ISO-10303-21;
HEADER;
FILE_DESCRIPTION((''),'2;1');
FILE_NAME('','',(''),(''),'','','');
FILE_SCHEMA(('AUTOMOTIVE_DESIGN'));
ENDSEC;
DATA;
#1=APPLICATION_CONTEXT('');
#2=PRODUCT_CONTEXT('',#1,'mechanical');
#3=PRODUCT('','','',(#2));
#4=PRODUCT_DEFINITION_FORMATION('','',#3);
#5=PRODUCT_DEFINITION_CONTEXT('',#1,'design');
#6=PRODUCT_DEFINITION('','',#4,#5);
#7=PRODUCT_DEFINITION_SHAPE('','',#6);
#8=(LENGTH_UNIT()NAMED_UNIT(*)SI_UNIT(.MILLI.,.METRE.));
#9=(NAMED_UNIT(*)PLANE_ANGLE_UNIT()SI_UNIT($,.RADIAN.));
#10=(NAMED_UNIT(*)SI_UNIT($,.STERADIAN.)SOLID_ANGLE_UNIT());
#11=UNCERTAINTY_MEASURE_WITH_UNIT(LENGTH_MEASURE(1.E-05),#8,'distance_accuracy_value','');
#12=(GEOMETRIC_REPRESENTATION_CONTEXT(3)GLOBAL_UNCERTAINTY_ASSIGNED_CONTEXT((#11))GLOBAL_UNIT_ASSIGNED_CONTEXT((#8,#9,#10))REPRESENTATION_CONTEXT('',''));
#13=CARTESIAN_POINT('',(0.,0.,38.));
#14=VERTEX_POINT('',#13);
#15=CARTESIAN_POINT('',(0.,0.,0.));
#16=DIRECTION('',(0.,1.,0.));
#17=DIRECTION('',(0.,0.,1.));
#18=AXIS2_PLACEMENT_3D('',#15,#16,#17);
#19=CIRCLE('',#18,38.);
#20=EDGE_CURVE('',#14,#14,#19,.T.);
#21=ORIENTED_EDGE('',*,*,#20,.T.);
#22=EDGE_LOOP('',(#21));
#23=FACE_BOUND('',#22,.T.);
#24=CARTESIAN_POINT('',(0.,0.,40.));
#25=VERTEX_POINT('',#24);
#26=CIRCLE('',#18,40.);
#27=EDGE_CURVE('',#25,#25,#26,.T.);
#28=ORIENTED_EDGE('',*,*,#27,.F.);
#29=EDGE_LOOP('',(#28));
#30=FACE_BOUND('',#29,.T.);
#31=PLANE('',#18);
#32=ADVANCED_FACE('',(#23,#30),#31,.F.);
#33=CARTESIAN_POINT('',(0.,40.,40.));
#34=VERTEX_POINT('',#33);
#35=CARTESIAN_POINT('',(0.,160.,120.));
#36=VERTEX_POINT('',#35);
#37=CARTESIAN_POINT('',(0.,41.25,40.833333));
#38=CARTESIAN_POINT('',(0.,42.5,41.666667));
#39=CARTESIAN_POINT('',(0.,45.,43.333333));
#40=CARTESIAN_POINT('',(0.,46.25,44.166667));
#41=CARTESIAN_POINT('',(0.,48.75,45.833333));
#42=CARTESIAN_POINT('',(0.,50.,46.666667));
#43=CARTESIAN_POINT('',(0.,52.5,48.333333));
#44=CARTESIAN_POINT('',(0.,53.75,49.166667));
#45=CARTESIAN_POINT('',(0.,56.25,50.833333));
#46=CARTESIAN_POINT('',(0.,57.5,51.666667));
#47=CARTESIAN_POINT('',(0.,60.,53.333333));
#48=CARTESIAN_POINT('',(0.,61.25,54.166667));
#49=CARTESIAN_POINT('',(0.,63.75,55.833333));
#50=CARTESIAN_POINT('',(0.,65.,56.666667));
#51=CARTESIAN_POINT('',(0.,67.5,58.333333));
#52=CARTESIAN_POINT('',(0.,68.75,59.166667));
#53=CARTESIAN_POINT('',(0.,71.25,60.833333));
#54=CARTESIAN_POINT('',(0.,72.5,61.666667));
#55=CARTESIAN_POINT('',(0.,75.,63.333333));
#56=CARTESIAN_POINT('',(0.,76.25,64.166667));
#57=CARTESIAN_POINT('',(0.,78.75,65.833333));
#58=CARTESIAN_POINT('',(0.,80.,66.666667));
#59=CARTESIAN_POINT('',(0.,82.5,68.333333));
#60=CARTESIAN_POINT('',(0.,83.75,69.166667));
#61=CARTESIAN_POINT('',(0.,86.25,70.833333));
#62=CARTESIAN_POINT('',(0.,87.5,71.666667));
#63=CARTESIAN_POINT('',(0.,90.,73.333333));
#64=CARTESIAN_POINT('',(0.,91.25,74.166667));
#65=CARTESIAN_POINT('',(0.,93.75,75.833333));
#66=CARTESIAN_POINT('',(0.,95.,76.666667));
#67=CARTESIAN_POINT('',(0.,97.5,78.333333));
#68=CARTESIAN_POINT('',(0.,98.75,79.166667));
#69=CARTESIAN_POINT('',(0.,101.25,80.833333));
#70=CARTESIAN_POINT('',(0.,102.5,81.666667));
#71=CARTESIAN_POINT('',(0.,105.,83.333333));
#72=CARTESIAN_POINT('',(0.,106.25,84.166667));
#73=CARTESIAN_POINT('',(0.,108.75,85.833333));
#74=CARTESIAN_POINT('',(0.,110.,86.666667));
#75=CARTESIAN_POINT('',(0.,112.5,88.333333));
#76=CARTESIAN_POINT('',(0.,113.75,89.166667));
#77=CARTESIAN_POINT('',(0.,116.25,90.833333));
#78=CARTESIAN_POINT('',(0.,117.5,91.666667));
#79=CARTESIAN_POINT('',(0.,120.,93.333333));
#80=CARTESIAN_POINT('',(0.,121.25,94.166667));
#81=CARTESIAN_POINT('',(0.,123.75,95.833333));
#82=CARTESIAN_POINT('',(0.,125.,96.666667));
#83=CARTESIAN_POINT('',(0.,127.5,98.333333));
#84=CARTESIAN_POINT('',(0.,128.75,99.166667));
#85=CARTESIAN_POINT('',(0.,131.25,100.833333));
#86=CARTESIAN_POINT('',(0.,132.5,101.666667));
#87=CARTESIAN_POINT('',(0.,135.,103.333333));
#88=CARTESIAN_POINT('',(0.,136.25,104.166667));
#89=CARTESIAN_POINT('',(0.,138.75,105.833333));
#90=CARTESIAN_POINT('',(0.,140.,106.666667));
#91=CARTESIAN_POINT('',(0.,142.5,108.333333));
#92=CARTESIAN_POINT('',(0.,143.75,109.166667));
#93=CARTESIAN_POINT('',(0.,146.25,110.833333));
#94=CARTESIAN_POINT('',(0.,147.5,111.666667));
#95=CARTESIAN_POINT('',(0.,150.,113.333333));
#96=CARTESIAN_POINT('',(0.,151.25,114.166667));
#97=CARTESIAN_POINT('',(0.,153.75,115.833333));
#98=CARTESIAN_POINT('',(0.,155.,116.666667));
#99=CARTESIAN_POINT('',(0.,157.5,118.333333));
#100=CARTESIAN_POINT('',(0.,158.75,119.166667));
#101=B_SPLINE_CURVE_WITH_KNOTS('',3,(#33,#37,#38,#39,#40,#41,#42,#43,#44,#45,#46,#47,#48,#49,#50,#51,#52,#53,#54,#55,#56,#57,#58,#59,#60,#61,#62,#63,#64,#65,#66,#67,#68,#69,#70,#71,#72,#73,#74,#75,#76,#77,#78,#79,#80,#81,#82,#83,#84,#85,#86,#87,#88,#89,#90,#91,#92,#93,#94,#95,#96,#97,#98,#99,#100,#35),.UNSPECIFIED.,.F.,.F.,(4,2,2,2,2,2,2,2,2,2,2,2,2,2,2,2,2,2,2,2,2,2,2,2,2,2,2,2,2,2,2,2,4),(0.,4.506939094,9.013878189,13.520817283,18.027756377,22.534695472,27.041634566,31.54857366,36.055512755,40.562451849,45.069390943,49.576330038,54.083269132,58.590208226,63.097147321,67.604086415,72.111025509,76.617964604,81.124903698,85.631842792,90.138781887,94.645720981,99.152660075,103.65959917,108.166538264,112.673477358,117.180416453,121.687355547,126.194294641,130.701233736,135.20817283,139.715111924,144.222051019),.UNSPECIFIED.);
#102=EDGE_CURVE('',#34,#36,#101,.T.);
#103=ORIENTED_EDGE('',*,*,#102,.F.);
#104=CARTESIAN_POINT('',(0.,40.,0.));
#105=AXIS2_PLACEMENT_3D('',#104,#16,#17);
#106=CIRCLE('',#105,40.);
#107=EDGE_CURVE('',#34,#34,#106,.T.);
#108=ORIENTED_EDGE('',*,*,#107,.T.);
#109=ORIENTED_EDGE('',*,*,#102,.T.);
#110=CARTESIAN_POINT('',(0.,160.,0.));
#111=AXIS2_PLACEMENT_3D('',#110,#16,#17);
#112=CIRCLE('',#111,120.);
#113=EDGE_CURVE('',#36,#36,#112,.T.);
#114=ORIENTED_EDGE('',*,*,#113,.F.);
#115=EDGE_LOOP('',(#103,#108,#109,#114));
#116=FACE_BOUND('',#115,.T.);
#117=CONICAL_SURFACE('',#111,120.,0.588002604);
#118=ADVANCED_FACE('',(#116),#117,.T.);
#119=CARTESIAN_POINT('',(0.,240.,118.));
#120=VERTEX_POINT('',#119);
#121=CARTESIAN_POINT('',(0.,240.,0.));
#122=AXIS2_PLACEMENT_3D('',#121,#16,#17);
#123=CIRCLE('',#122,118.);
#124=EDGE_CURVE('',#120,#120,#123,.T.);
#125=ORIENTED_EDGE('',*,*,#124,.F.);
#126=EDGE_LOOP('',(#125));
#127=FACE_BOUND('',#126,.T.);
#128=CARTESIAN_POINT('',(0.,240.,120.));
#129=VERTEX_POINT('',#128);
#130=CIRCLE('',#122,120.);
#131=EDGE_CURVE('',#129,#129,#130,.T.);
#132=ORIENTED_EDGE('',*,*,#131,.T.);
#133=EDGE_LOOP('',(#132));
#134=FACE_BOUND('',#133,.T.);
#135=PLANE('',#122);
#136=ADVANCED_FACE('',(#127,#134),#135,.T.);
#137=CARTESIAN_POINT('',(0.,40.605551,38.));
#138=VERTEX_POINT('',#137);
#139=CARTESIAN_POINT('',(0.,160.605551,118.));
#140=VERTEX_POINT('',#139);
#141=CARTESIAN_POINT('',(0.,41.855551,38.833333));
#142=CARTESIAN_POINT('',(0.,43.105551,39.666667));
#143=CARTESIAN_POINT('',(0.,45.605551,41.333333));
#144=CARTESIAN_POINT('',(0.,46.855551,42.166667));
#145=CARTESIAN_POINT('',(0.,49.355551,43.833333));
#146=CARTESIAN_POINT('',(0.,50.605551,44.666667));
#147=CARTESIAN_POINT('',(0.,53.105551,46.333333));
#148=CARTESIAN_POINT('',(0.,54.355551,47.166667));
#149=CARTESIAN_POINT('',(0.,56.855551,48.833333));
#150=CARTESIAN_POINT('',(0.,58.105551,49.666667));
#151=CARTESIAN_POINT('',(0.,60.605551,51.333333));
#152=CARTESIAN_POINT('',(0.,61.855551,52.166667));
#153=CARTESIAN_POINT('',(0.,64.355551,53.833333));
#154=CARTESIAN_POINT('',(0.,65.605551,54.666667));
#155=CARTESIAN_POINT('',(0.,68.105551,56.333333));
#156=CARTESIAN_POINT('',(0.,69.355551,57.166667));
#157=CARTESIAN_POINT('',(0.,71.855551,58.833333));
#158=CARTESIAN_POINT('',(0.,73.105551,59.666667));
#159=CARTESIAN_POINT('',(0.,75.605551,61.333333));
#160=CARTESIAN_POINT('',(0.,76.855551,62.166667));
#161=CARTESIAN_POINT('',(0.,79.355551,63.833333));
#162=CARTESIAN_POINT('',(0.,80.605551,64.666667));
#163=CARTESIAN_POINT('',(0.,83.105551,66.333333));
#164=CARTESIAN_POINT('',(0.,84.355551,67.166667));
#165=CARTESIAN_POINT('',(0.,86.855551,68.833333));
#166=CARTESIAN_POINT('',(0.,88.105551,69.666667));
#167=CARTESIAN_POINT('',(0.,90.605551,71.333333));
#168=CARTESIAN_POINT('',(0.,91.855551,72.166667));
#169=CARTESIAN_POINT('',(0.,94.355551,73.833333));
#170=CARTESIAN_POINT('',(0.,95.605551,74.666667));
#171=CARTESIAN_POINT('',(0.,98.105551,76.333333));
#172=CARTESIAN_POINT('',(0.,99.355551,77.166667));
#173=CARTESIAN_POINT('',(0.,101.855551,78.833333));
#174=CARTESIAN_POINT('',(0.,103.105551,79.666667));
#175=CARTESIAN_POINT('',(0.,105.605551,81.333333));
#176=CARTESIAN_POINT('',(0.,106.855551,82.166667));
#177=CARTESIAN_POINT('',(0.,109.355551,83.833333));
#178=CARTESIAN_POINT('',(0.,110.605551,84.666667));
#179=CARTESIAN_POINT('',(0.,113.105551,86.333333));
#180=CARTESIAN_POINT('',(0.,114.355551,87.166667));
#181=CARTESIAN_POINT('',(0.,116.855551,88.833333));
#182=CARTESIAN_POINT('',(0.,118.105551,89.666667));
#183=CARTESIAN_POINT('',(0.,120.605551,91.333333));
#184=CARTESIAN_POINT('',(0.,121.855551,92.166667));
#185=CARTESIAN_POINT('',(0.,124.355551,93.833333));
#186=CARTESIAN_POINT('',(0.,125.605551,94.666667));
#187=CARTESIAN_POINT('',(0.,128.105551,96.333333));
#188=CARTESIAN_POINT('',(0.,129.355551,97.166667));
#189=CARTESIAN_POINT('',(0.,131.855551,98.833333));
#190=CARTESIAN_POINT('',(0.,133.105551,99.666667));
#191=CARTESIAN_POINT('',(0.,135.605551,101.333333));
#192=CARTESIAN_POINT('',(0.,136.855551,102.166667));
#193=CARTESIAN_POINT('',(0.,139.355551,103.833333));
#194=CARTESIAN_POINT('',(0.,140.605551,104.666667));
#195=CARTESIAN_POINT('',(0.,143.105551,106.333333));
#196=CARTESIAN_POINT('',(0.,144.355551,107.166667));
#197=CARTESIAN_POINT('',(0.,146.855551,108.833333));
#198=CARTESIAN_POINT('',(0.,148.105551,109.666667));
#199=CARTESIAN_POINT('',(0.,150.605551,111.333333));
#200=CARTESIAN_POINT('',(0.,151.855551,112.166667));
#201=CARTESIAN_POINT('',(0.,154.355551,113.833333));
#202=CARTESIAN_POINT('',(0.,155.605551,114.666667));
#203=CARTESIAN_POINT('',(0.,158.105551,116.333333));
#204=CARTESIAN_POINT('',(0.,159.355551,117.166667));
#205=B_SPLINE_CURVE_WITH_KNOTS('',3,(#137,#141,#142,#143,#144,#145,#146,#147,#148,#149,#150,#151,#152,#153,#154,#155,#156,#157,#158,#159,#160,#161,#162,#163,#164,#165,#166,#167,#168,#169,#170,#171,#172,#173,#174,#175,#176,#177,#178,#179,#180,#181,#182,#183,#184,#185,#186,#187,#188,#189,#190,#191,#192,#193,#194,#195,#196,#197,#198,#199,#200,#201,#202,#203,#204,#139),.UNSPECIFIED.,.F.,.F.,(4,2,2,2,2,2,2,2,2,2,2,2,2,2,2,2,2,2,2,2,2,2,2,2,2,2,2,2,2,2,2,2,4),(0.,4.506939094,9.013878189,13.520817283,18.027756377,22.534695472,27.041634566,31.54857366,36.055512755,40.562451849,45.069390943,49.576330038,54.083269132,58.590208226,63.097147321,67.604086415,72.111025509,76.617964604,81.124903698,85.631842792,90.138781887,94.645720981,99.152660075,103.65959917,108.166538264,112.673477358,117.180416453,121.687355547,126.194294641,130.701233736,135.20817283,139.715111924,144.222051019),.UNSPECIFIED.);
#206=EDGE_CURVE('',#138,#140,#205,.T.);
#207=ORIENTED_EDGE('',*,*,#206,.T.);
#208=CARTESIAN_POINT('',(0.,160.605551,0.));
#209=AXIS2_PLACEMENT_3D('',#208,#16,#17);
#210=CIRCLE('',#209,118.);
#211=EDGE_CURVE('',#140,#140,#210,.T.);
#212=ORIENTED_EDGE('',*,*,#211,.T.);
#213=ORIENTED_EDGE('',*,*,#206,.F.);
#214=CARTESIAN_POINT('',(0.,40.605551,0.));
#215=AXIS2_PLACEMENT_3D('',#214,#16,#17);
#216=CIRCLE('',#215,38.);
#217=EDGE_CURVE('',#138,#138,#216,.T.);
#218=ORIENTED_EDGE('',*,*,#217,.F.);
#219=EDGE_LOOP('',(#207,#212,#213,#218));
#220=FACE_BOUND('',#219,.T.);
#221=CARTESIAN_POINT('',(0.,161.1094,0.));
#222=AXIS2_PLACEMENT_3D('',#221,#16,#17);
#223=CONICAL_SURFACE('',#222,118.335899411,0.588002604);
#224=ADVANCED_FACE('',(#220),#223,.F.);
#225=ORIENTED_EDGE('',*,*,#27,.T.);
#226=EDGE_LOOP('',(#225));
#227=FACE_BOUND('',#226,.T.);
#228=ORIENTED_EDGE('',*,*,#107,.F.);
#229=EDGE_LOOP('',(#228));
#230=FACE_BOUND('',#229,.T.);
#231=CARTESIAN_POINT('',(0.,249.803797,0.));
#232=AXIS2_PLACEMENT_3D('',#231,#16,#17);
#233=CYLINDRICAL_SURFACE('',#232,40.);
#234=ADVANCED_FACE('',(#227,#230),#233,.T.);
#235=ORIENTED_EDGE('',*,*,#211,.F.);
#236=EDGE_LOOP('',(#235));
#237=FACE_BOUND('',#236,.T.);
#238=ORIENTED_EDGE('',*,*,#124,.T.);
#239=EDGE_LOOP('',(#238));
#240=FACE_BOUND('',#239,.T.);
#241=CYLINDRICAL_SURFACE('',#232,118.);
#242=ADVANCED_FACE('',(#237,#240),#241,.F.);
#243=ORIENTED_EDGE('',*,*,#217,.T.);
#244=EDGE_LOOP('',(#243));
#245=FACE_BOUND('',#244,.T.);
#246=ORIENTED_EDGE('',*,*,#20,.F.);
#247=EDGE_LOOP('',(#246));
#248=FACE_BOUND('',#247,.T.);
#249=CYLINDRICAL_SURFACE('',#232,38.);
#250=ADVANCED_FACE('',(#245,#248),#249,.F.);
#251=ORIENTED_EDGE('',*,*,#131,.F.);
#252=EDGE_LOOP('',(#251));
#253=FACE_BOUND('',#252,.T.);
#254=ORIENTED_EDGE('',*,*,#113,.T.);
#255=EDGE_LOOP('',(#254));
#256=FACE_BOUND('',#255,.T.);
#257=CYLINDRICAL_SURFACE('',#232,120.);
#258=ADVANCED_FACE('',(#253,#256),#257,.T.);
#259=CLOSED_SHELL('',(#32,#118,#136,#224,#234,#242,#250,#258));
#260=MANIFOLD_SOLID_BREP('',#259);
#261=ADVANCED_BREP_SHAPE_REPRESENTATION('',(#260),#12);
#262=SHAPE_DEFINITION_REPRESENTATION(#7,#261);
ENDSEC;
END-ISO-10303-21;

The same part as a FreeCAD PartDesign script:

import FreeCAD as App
import Part
import Sketcher
Q = App.Units.Quantity


def faces_at(feature, points):
    """Names of the faces that lie closest to the given points."""
    faces = feature.Shape.Faces
    near = lambda p: min(range(len(faces)), key=lambda i: faces[i].distToShape(Part.Vertex(*p))[0])
    return sorted({f"Face{near(p) + 1}" for p in points})

doc = App.newDocument("Part")
params = doc.addObject("Spreadsheet::Sheet", "Params")
for row, (alias, value) in enumerate([
    ("sketch1_width", "120 mm"),
    ("sketch1_width2", "40 mm"),
    ("sketch1_height", "80 mm"),
    ("sketch1_height2", "240 mm"),
    ("revolution_angle", "360 deg"),
    ("thickness_wall", "2 mm"),
], start=1):
    params.set(f"A{row}", alias)
    params.set(f"B{row}", "=" + value)
    params.setAlias(f"B{row}", alias)

body = doc.addObject("PartDesign::Body", "Body")

# Sketch on XY plane
sketch1 = body.newObject("Sketcher::SketchObject", "Sketch")
sketch1.AttachmentSupport = (doc.getObject("XY_Plane"), [""])
sketch1.MapMode = "FlatFace"
sketch1.addGeometry([
    Part.LineSegment(App.Vector(0, 240, 0), App.Vector(-120, 240, 0)),  # 0
    Part.LineSegment(App.Vector(-120, 240, 0), App.Vector(-120, 160, 0)),  # 1
    Part.LineSegment(App.Vector(-120, 160, 0), App.Vector(-40, 40, 0)),  # 2
    Part.LineSegment(App.Vector(-40, 40, 0), App.Vector(-40, 0, 0)),  # 3
    Part.LineSegment(App.Vector(-40, 0, 0), App.Vector(0, 0, 0)),  # 4
    Part.LineSegment(App.Vector(0, 0, 0), App.Vector(0, 240, 0)),  # 5
], False)
sketch1.addConstraint([
    Sketcher.Constraint("Coincident", 0, 2, 1, 1),
    Sketcher.Constraint("Coincident", 1, 2, 2, 1),
    Sketcher.Constraint("Coincident", 2, 2, 3, 1),
    Sketcher.Constraint("Coincident", 3, 2, 4, 1),
    Sketcher.Constraint("Coincident", 4, 2, 5, 1),
    Sketcher.Constraint("Coincident", 5, 2, 0, 1),
    Sketcher.Constraint("Horizontal", 0),
    Sketcher.Constraint("Vertical", 1),
    Sketcher.Constraint("Vertical", 3),
    Sketcher.Constraint("Horizontal", 4),
    Sketcher.Constraint("Vertical", 5),
    Sketcher.Constraint("Coincident", 4, 2, -1, 1),
    Sketcher.Constraint("Equal", 4, 3),
    Sketcher.Constraint("DistanceX", 0, 2, 0, 1, Q("120 mm")),
    Sketcher.Constraint("DistanceX", 4, 1, 4, 2, Q("40 mm")),
    Sketcher.Constraint("DistanceY", 1, 2, 1, 1, Q("80 mm")),
    Sketcher.Constraint("DistanceY", 5, 1, 5, 2, Q("240 mm")),
])
sketch1.setExpression("Constraints[13]", "Params.sketch1_width")
sketch1.setExpression("Constraints[14]", "Params.sketch1_width2")
sketch1.setExpression("Constraints[15]", "Params.sketch1_height")
sketch1.setExpression("Constraints[16]", "Params.sketch1_height2")
revolution = body.newObject("PartDesign::Revolution", "Revolution")
revolution.Profile = sketch1
revolution.ReferenceAxis = (sketch1, ["V_Axis"])
revolution.setExpression("Angle", "Params.revolution_angle")
doc.recompute()

thickness = body.newObject("PartDesign::Thickness", "Thickness")
thickness.Base = (revolution, faces_at(revolution, [(0, 240, 0), (0, 0, 0)]))
thickness.setExpression("Value", "Params.thickness_wall")
thickness.Reversed = True
thickness.Join = "Intersection"

doc.recompute()
